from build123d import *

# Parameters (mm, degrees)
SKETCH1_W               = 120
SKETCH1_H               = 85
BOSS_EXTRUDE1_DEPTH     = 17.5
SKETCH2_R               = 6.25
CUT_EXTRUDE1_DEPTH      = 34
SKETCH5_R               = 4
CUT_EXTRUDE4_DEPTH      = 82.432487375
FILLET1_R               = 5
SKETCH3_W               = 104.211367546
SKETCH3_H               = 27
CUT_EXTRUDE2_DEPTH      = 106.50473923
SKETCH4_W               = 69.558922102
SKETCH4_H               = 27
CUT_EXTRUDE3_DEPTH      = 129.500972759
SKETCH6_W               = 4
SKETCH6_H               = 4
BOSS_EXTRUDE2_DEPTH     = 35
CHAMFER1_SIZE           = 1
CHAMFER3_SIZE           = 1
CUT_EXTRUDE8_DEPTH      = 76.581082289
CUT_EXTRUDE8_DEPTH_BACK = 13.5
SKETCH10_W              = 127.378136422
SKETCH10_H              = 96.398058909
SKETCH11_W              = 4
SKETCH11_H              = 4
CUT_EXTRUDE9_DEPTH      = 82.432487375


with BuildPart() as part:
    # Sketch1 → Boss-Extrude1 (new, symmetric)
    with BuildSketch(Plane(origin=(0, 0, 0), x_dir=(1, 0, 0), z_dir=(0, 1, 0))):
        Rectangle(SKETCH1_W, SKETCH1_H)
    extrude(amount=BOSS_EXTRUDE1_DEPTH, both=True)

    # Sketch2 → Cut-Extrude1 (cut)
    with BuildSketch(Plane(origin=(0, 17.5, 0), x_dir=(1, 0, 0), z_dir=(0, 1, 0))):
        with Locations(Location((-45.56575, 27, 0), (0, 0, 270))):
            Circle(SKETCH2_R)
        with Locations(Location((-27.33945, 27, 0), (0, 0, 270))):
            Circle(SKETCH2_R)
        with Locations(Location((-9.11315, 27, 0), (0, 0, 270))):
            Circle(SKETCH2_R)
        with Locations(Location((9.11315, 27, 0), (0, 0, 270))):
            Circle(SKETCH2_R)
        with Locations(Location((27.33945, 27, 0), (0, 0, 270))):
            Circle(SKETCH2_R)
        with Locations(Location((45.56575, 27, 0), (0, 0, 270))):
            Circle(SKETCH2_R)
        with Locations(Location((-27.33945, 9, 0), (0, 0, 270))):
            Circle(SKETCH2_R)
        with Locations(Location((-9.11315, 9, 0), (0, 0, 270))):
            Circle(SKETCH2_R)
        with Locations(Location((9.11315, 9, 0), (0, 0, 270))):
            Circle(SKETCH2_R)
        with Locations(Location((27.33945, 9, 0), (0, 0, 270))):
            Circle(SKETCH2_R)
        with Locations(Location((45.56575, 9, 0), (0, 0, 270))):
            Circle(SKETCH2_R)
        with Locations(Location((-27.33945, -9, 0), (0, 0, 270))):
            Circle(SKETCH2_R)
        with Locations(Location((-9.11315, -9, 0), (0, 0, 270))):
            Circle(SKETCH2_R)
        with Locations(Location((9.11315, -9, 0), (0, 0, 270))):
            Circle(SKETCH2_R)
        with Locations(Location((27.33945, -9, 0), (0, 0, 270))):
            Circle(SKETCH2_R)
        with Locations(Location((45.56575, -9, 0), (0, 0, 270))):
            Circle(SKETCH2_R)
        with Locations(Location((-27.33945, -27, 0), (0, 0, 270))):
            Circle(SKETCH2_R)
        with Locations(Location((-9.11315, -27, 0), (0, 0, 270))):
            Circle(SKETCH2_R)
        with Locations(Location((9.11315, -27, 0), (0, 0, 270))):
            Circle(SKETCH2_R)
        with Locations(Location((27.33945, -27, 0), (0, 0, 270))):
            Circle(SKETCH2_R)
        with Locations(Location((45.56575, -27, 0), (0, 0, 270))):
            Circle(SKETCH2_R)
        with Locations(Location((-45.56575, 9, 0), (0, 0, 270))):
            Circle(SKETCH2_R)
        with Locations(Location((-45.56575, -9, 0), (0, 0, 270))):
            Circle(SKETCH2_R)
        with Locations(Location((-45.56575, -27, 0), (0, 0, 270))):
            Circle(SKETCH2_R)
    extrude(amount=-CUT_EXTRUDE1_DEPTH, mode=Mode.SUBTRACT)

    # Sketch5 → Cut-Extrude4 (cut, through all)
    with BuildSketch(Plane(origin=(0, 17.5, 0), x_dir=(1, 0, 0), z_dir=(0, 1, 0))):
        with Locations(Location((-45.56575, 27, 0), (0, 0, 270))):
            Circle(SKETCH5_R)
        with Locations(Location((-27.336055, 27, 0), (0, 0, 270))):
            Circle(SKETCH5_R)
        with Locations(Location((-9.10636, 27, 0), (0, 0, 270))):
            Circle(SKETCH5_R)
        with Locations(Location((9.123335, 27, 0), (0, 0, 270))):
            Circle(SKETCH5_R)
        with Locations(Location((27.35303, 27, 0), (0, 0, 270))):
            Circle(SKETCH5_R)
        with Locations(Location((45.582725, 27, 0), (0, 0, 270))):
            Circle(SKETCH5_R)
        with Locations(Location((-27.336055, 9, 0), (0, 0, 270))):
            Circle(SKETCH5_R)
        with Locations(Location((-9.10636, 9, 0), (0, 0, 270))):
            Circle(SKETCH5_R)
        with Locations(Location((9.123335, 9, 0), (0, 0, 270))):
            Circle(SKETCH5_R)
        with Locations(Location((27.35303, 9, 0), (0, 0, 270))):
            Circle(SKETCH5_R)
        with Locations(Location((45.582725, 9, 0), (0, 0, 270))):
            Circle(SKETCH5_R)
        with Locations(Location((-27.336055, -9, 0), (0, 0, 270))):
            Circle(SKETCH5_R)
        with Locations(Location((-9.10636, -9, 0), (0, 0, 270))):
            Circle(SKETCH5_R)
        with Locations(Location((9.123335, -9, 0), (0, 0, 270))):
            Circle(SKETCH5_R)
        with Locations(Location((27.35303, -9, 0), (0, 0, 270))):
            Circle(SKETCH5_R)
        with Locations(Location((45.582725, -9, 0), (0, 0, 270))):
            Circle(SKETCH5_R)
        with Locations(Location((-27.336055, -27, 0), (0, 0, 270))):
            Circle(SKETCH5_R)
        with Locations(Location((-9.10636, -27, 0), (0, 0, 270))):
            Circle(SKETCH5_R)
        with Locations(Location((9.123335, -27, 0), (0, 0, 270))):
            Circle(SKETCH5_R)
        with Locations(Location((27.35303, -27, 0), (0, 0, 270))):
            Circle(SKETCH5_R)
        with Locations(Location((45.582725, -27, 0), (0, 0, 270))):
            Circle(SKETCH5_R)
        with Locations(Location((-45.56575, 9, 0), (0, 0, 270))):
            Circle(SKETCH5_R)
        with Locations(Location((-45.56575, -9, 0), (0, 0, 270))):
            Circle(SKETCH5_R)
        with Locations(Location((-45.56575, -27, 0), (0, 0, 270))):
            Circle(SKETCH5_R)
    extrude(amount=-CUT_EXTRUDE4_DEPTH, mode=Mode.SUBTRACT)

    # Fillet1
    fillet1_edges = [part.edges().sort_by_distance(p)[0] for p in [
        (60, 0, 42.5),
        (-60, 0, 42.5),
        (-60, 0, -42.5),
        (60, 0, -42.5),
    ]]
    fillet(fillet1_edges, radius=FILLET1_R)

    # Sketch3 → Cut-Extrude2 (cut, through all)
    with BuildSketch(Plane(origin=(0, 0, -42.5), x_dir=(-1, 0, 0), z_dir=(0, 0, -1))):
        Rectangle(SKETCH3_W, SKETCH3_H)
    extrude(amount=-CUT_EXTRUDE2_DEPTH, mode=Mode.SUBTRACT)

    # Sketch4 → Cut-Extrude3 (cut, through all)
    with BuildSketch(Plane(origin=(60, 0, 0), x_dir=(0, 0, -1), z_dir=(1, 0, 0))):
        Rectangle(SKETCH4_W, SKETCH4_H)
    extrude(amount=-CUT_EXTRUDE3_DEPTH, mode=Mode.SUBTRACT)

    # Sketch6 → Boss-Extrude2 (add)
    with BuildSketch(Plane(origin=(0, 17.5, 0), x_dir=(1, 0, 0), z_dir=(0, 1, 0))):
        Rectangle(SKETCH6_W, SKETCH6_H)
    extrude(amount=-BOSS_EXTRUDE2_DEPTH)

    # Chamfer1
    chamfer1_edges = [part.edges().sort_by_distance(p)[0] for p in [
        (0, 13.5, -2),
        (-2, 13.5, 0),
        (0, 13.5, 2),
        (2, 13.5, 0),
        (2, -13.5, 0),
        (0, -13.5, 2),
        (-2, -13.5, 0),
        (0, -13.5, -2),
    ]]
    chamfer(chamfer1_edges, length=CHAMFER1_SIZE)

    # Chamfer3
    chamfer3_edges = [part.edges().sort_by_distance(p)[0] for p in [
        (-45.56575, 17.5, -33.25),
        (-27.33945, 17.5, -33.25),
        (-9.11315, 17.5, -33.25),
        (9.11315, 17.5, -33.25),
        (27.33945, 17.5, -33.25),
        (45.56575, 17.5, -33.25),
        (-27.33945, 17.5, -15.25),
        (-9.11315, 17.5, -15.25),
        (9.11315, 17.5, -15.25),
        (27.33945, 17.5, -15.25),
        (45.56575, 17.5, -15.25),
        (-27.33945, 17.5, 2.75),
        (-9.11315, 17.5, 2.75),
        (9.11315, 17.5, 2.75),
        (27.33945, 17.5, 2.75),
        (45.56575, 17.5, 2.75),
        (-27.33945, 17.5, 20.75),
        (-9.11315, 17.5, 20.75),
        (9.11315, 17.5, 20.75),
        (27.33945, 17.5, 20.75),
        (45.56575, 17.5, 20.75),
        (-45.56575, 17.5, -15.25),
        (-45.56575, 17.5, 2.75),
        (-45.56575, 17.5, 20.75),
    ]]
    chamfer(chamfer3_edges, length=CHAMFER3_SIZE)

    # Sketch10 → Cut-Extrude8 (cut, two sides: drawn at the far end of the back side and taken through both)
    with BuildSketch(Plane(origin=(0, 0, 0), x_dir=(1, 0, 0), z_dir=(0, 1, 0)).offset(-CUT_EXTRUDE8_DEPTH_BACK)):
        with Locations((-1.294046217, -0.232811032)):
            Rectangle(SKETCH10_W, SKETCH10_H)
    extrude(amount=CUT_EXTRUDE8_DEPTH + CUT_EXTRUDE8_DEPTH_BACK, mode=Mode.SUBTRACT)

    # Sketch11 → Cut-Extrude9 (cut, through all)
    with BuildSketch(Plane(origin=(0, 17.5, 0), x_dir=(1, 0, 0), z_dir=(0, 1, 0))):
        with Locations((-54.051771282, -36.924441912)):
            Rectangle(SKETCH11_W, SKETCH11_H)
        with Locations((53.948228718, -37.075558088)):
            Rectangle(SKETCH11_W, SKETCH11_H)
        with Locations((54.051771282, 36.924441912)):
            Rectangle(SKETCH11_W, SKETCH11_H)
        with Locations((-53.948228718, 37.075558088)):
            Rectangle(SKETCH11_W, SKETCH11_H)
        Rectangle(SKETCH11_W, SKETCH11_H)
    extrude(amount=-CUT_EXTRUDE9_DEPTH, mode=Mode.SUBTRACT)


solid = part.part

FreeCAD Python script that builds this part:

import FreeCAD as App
import Part
import Sketcher
from FreeCAD import Vector


def edges_at(feature, points):
    """Names of the edges that pass closest to the given points."""
    edges = feature.Shape.Edges
    near = lambda p: min(range(len(edges)), key=lambda i: edges[i].distToShape(Part.Vertex(*p))[0])
    return sorted({f"Edge{near(p) + 1}" for p in points})

doc = App.newDocument("Part")
params = doc.addObject("Spreadsheet::Sheet", "Params")
for row, (alias, value) in enumerate([
    ("sketch1_width", "120 mm"),
    ("sketch1_height", "85 mm"),
    ("pad1_length", "35 mm"),
    ("sketch2_diameter", "12.5 mm"),
    ("pocket1_length", "34 mm"),
    ("sketch3_diameter", "8 mm"),
    ("fillet_radius", "5 mm"),
    ("sketch4_height", "27 mm"),
    ("sketch5_width", "27 mm"),
    ("sketch6_width", "4 mm"),
    ("pad2_length", "35 mm"),
    ("chamfer_size", "1 mm"),
    ("chamfer2_size", "1 mm"),
    ("pocket5_length", "76.581082 mm"),
    ("pocket5_length2", "13.5 mm"),
    ("sketch8_width", "4 mm"),
], start=1):
    params.set(f"A{row}", alias)
    params.set(f"B{row}", "=" + value)
    params.setAlias(f"B{row}", alias)

body = doc.addObject("PartDesign::Body", "Body")

sketch1 = doc.addObject("Sketcher::SketchObject", "Sketch")
body.addObject(sketch1)
sketch1.AttachmentSupport = (doc.XZ_Plane, [""])
sketch1.MapMode = "FlatFace"
sketch1.addGeometry(Part.LineSegment(Vector(-60, -42, 0), Vector(-60, 42, 0)), False)
sketch1.addGeometry(Part.LineSegment(Vector(-60, 42, 0), Vector(60, 42, 0)), False)
sketch1.addGeometry(Part.LineSegment(Vector(60, 42, 0), Vector(60, -42, 0)), False)
sketch1.addGeometry(Part.LineSegment(Vector(60, -42, 0), Vector(-60, -42, 0)), False)
sketch1.addConstraint(Sketcher.Constraint("Coincident", 0, 2, 1, 1))
sketch1.addConstraint(Sketcher.Constraint("Coincident", 1, 2, 2, 1))
sketch1.addConstraint(Sketcher.Constraint("Coincident", 2, 2, 3, 1))
sketch1.addConstraint(Sketcher.Constraint("Coincident", 3, 2, 0, 1))
sketch1.addConstraint(Sketcher.Constraint("Vertical", 0))
sketch1.addConstraint(Sketcher.Constraint("Horizontal", 1))
sketch1.addConstraint(Sketcher.Constraint("Vertical", 2))
sketch1.addConstraint(Sketcher.Constraint("Horizontal", 3))
sketch1.addConstraint(Sketcher.Constraint("Symmetric", 0, 2, 2, 2, -1, 1))
sketch1.addConstraint(Sketcher.Constraint("DistanceX", 1, 1, 1, 2, 120.0))
sketch1.addConstraint(Sketcher.Constraint("DistanceY", 0, 1, 0, 2, 85.0))
sketch1.setExpression("Constraints[9]", "Params.sketch1_width")
sketch1.setExpression("Constraints[10]", "Params.sketch1_height")
pad1 = doc.addObject("PartDesign::Pad", "Pad")
body.addObject(pad1)
pad1.Profile = sketch1
pad1.setExpression("Length", "Params.pad1_length")
pad1.Midplane = True

sketch2 = doc.addObject("Sketcher::SketchObject", "Sketch001")
body.addObject(sketch2)
sketch2.AttachmentSupport = (doc.XZ_Plane, [""])
sketch2.MapMode = "FlatFace"
sketch2.AttachmentOffset = App.Placement(Vector(0, 0, -17.5), App.Rotation())
sketch2.addGeometry(Part.Circle(Vector(-46, -27, 0), Vector(0, 0, 1), 6), False)
sketch2.addGeometry(Part.Circle(Vector(-27, -27, 0), Vector(0, 0, 1), 6), False)
sketch2.addGeometry(Part.Circle(Vector(-9, -27, 0), Vector(0, 0, 1), 6), False)
sketch2.addGeometry(Part.Circle(Vector(9, -27, 0), Vector(0, 0, 1), 6), False)
sketch2.addGeometry(Part.Circle(Vector(27, -27, 0), Vector(0, 0, 1), 6), False)
sketch2.addGeometry(Part.Circle(Vector(46, -27, 0), Vector(0, 0, 1), 6), False)
sketch2.addGeometry(Part.Circle(Vector(-27, -9, 0), Vector(0, 0, 1), 6), False)
sketch2.addGeometry(Part.Circle(Vector(-9, -9, 0), Vector(0, 0, 1), 6), False)
sketch2.addGeometry(Part.Circle(Vector(9, -9, 0), Vector(0, 0, 1), 6), False)
sketch2.addGeometry(Part.Circle(Vector(27, -9, 0), Vector(0, 0, 1), 6), False)
sketch2.addGeometry(Part.Circle(Vector(46, -9, 0), Vector(0, 0, 1), 6), False)
sketch2.addGeometry(Part.Circle(Vector(-27, 9, 0), Vector(0, 0, 1), 6), False)
sketch2.addGeometry(Part.Circle(Vector(-9, 9, 0), Vector(0, 0, 1), 6), False)
sketch2.addGeometry(Part.Circle(Vector(9, 9, 0), Vector(0, 0, 1), 6), False)
sketch2.addGeometry(Part.Circle(Vector(27, 9, 0), Vector(0, 0, 1), 6), False)
sketch2.addGeometry(Part.Circle(Vector(46, 9, 0), Vector(0, 0, 1), 6), False)
sketch2.addGeometry(Part.Circle(Vector(-27, 27, 0), Vector(0, 0, 1), 6), False)
sketch2.addGeometry(Part.Circle(Vector(-9, 27, 0), Vector(0, 0, 1), 6), False)
sketch2.addGeometry(Part.Circle(Vector(9, 27, 0), Vector(0, 0, 1), 6), False)
sketch2.addGeometry(Part.Circle(Vector(27, 27, 0), Vector(0, 0, 1), 6), False)
sketch2.addGeometry(Part.Circle(Vector(46, 27, 0), Vector(0, 0, 1), 6), False)
sketch2.addGeometry(Part.Circle(Vector(-46, -9, 0), Vector(0, 0, 1), 6), False)
sketch2.addGeometry(Part.Circle(Vector(-46, 9, 0), Vector(0, 0, 1), 6), False)
sketch2.addGeometry(Part.Circle(Vector(-46, 27, 0), Vector(0, 0, 1), 6), False)
sketch2.addConstraint(Sketcher.Constraint("Equal", 0, 1))
sketch2.addConstraint(Sketcher.Constraint("Equal", 1, 2))
sketch2.addConstraint(Sketcher.Constraint("Equal", 2, 3))
sketch2.addConstraint(Sketcher.Constraint("Equal", 3, 4))
sketch2.addConstraint(Sketcher.Constraint("Equal", 4, 5))
sketch2.addConstraint(Sketcher.Constraint("Equal", 5, 6))
sketch2.addConstraint(Sketcher.Constraint("Equal", 6, 7))
sketch2.addConstraint(Sketcher.Constraint("Equal", 7, 8))
sketch2.addConstraint(Sketcher.Constraint("Equal", 8, 9))
sketch2.addConstraint(Sketcher.Constraint("Equal", 9, 10))
sketch2.addConstraint(Sketcher.Constraint("Equal", 10, 11))
sketch2.addConstraint(Sketcher.Constraint("Equal", 11, 12))
sketch2.addConstraint(Sketcher.Constraint("Equal", 12, 13))
sketch2.addConstraint(Sketcher.Constraint("Equal", 13, 14))
sketch2.addConstraint(Sketcher.Constraint("Equal", 14, 15))
sketch2.addConstraint(Sketcher.Constraint("Equal", 15, 16))
sketch2.addConstraint(Sketcher.Constraint("Equal", 16, 17))
sketch2.addConstraint(Sketcher.Constraint("Equal", 17, 18))
sketch2.addConstraint(Sketcher.Constraint("Equal", 18, 19))
sketch2.addConstraint(Sketcher.Constraint("Equal", 19, 20))
sketch2.addConstraint(Sketcher.Constraint("Equal", 20, 21))
sketch2.addConstraint(Sketcher.Constraint("Equal", 21, 22))
sketch2.addConstraint(Sketcher.Constraint("Equal", 22, 23))
sketch2.addConstraint(Sketcher.Constraint("Symmetric", 9, 3, 11, 3, -1, 1))
sketch2.addConstraint(Sketcher.Constraint("Symmetric", 8, 3, 12, 3, -1, 1))
sketch2.addConstraint(Sketcher.Constraint("Symmetric", 7, 3, 13, 3, -1, 1))
sketch2.addConstraint(Sketcher.Constraint("Symmetric", 6, 3, 14, 3, -1, 1))
sketch2.addConstraint(Sketcher.Constraint("Symmetric", 4, 3, 16, 3, -1, 1))
sketch2.addConstraint(Sketcher.Constraint("Symmetric", 3, 3, 17, 3, -1, 1))
sketch2.addConstraint(Sketcher.Constraint("Symmetric", 2, 3, 18, 3, -1, 1))
sketch2.addConstraint(Sketcher.Constraint("Symmetric", 1, 3, 19, 3, -1, 1))
sketch2.addConstraint(Sketcher.Constraint("Symmetric", 0, 3, 20, 3, -1, 1))
sketch2.addConstraint(Sketcher.Constraint("Symmetric", 15, 3, 21, 3, -1, 1))
sketch2.addConstraint(Sketcher.Constraint("Symmetric", 10, 3, 22, 3, -1, 1))
sketch2.addConstraint(Sketcher.Constraint("Symmetric", 5, 3, 23, 3, -1, 1))
sketch2.addConstraint(Sketcher.Constraint("Symmetric", 2, 3, 3, 3, -2))
sketch2.addConstraint(Sketcher.Constraint("Symmetric", 1, 3, 4, 3, -2))
sketch2.addConstraint(Sketcher.Constraint("Symmetric", 0, 3, 5, 3, -2))
sketch2.addConstraint(Sketcher.Constraint("Symmetric", 7, 3, 8, 3, -2))
sketch2.addConstraint(Sketcher.Constraint("Symmetric", 6, 3, 9, 3, -2))
sketch2.addConstraint(Sketcher.Constraint("Symmetric", 10, 3, 21, 3, -2))
sketch2.addConstraint(Sketcher.Constraint("Horizontal", 0, 3, 1, 3))
sketch2.addConstraint(Sketcher.Constraint("Horizontal", 1, 3, 2, 3))
sketch2.addConstraint(Sketcher.Constraint("Horizontal", 6, 3, 7, 3))
sketch2.addConstraint(Sketcher.Constraint("Horizontal", 9, 3, 10, 3))
sketch2.addConstraint(Sketcher.Constraint("Vertical", 1, 3, 6, 3))
sketch2.addConstraint(Sketcher.Constraint("Vertical", 2, 3, 7, 3))
sketch2.addConstraint(Sketcher.Constraint("Vertical", 5, 3, 10, 3))
sketch2.addConstraint(Sketcher.Constraint("Diameter", 0, 12.5))
sketch2.addConstraint(Sketcher.Constraint("DistanceY", 0, 3, -1, 1, 27.0))
sketch2.addConstraint(Sketcher.Constraint("DistanceY", 6, 3, -1, 1, 9.0))
sketch2.addConstraint(Sketcher.Constraint("DistanceX", 0, 3, 1, 3, 18.2263))
sketch2.addConstraint(Sketcher.Constraint("DistanceX", 1, 3, 2, 3, 18.2263))
sketch2.addConstraint(Sketcher.Constraint("DistanceX", 2, 3, 3, 3, 18.2263))
sketch2.setExpression("Constraints[48]", "Params.sketch2_diameter")
pocket1 = doc.addObject("PartDesign::Pocket", "Pocket")
body.addObject(pocket1)
pocket1.Profile = sketch2
pocket1.setExpression("Length", "Params.pocket1_length")
pocket1.Reversed = True

sketch3 = doc.addObject("Sketcher::SketchObject", "Sketch002")
body.addObject(sketch3)
sketch3.AttachmentSupport = (doc.XZ_Plane, [""])
sketch3.MapMode = "FlatFace"
sketch3.AttachmentOffset = App.Placement(Vector(0, 0, -17.5), App.Rotation())
sketch3.addGeometry(Part.Circle(Vector(-45.6, -27, 0), Vector(0, 0, 1), 4), False)
sketch3.addGeometry(Part.Circle(Vector(-27.3, -27, 0), Vector(0, 0, 1), 4), False)
sketch3.addGeometry(Part.Circle(Vector(-9.1, -27, 0), Vector(0, 0, 1), 4), False)
sketch3.addGeometry(Part.Circle(Vector(9.1, -27, 0), Vector(0, 0, 1), 4), False)
sketch3.addGeometry(Part.Circle(Vector(27.4, -27, 0), Vector(0, 0, 1), 4), False)
sketch3.addGeometry(Part.Circle(Vector(45.6, -27, 0), Vector(0, 0, 1), 4), False)
sketch3.addGeometry(Part.Circle(Vector(-27.3, -9, 0), Vector(0, 0, 1), 4), False)
sketch3.addGeometry(Part.Circle(Vector(-9.1, -9, 0), Vector(0, 0, 1), 4), False)
sketch3.addGeometry(Part.Circle(Vector(9.1, -9, 0), Vector(0, 0, 1), 4), False)
sketch3.addGeometry(Part.Circle(Vector(27.4, -9, 0), Vector(0, 0, 1), 4), False)
sketch3.addGeometry(Part.Circle(Vector(45.6, -9, 0), Vector(0, 0, 1), 4), False)
sketch3.addGeometry(Part.Circle(Vector(-27.3, 9, 0), Vector(0, 0, 1), 4), False)
sketch3.addGeometry(Part.Circle(Vector(-9.1, 9, 0), Vector(0, 0, 1), 4), False)
sketch3.addGeometry(Part.Circle(Vector(9.1, 9, 0), Vector(0, 0, 1), 4), False)
sketch3.addGeometry(Part.Circle(Vector(27.4, 9, 0), Vector(0, 0, 1), 4), False)
sketch3.addGeometry(Part.Circle(Vector(45.6, 9, 0), Vector(0, 0, 1), 4), False)
sketch3.addGeometry(Part.Circle(Vector(-27.3, 27, 0), Vector(0, 0, 1), 4), False)
sketch3.addGeometry(Part.Circle(Vector(-9.1, 27, 0), Vector(0, 0, 1), 4), False)
sketch3.addGeometry(Part.Circle(Vector(9.1, 27, 0), Vector(0, 0, 1), 4), False)
sketch3.addGeometry(Part.Circle(Vector(27.4, 27, 0), Vector(0, 0, 1), 4), False)
sketch3.addGeometry(Part.Circle(Vector(45.6, 27, 0), Vector(0, 0, 1), 4), False)
sketch3.addGeometry(Part.Circle(Vector(-45.6, -9, 0), Vector(0, 0, 1), 4), False)
sketch3.addGeometry(Part.Circle(Vector(-45.6, 9, 0), Vector(0, 0, 1), 4), False)
sketch3.addGeometry(Part.Circle(Vector(-45.6, 27, 0), Vector(0, 0, 1), 4), False)
sketch3.addConstraint(Sketcher.Constraint("Equal", 0, 1))
sketch3.addConstraint(Sketcher.Constraint("Equal", 1, 2))
sketch3.addConstraint(Sketcher.Constraint("Equal", 2, 3))
sketch3.addConstraint(Sketcher.Constraint("Equal", 3, 4))
sketch3.addConstraint(Sketcher.Constraint("Equal", 4, 5))
sketch3.addConstraint(Sketcher.Constraint("Equal", 5, 6))
sketch3.addConstraint(Sketcher.Constraint("Equal", 6, 7))
sketch3.addConstraint(Sketcher.Constraint("Equal", 7, 8))
sketch3.addConstraint(Sketcher.Constraint("Equal", 8, 9))
sketch3.addConstraint(Sketcher.Constraint("Equal", 9, 10))
sketch3.addConstraint(Sketcher.Constraint("Equal", 10, 11))
sketch3.addConstraint(Sketcher.Constraint("Equal", 11, 12))
sketch3.addConstraint(Sketcher.Constraint("Equal", 12, 13))
sketch3.addConstraint(Sketcher.Constraint("Equal", 13, 14))
sketch3.addConstraint(Sketcher.Constraint("Equal", 14, 15))
sketch3.addConstraint(Sketcher.Constraint("Equal", 15, 16))
sketch3.addConstraint(Sketcher.Constraint("Equal", 16, 17))
sketch3.addConstraint(Sketcher.Constraint("Equal", 17, 18))
sketch3.addConstraint(Sketcher.Constraint("Equal", 18, 19))
sketch3.addConstraint(Sketcher.Constraint("Equal", 19, 20))
sketch3.addConstraint(Sketcher.Constraint("Equal", 20, 21))
sketch3.addConstraint(Sketcher.Constraint("Equal", 21, 22))
sketch3.addConstraint(Sketcher.Constraint("Equal", 22, 23))
sketch3.addConstraint(Sketcher.Constraint("Symmetric", 6, 3, 11, 3, -1))
sketch3.addConstraint(Sketcher.Constraint("Symmetric", 7, 3, 12, 3, -1))
sketch3.addConstraint(Sketcher.Constraint("Symmetric", 8, 3, 13, 3, -1))
sketch3.addConstraint(Sketcher.Constraint("Symmetric", 9, 3, 14, 3, -1))
sketch3.addConstraint(Sketcher.Constraint("Symmetric", 10, 3, 15, 3, -1))
sketch3.addConstraint(Sketcher.Constraint("Symmetric", 1, 3, 16, 3, -1))
sketch3.addConstraint(Sketcher.Constraint("Symmetric", 2, 3, 17, 3, -1))
sketch3.addConstraint(Sketcher.Constraint("Symmetric", 3, 3, 18, 3, -1))
sketch3.addConstraint(Sketcher.Constraint("Symmetric", 4, 3, 19, 3, -1))
sketch3.addConstraint(Sketcher.Constraint("Symmetric", 5, 3, 20, 3, -1))
sketch3.addConstraint(Sketcher.Constraint("Symmetric", 21, 3, 22, 3, -1))
sketch3.addConstraint(Sketcher.Constraint("Symmetric", 0, 3, 23, 3, -1))
sketch3.addConstraint(Sketcher.Constraint("Horizontal", 0, 3, 1, 3))
sketch3.addConstraint(Sketcher.Constraint("Horizontal", 1, 3, 2, 3))
sketch3.addConstraint(Sketcher.Constraint("Horizontal", 2, 3, 3, 3))
sketch3.addConstraint(Sketcher.Constraint("Horizontal", 3, 3, 4, 3))
sketch3.addConstraint(Sketcher.Constraint("Horizontal", 4, 3, 5, 3))
sketch3.addConstraint(Sketcher.Constraint("Horizontal", 6, 3, 7, 3))
sketch3.addConstraint(Sketcher.Constraint("Horizontal", 7, 3, 8, 3))
sketch3.addConstraint(Sketcher.Constraint("Horizontal", 8, 3, 9, 3))
sketch3.addConstraint(Sketcher.Constraint("Horizontal", 9, 3, 10, 3))
sketch3.addConstraint(Sketcher.Constraint("Horizontal", 10, 3, 21, 3))
sketch3.addConstraint(Sketcher.Constraint("Vertical", 1, 3, 6, 3))
sketch3.addConstraint(Sketcher.Constraint("Vertical", 2, 3, 7, 3))
sketch3.addConstraint(Sketcher.Constraint("Vertical", 3, 3, 8, 3))
sketch3.addConstraint(Sketcher.Constraint("Vertical", 4, 3, 9, 3))
sketch3.addConstraint(Sketcher.Constraint("Vertical", 5, 3, 10, 3))
sketch3.addConstraint(Sketcher.Constraint("Vertical", 0, 3, 21, 3))
sketch3.addConstraint(Sketcher.Constraint("Diameter", 0, 8.0))
sketch3.addConstraint(Sketcher.Constraint("DistanceY", 0, 3, -1, 1, 27.0))
sketch3.addConstraint(Sketcher.Constraint("DistanceY", 6, 3, -1, 1, 9.0))
sketch3.addConstraint(Sketcher.Constraint("DistanceX", 0, 3, -1, 1, 45.56575))
sketch3.addConstraint(Sketcher.Constraint("DistanceX", 2, 3, -1, 1, 9.10636))
sketch3.addConstraint(Sketcher.Constraint("DistanceX", -1, 1, 4, 3, 27.35303))
sketch3.addConstraint(Sketcher.Constraint("DistanceX", 1, 3, 3, 3, 36.45939))
sketch3.addConstraint(Sketcher.Constraint("DistanceX", 3, 3, 5, 3, 36.45939))
sketch3.addConstraint(Sketcher.Constraint("DistanceX", 1, 3, -1, 1, 27.336055))
sketch3.setExpression("Constraints[51]", "Params.sketch3_diameter")
pocket2 = doc.addObject("PartDesign::Pocket", "Pocket001")
body.addObject(pocket2)
pocket2.Profile = sketch3
pocket2.Type = "ThroughAll"
pocket2.Reversed = True
doc.recompute()

fillet = doc.addObject("PartDesign::Fillet", "Fillet")
body.addObject(fillet)
fillet.Base = (pocket2, edges_at(pocket2, [
    (60, 0, 42.5),
    (-60, 0, 42.5),
    (-60, 0, -42.5),
    (60, 0, -42.5),
]))
fillet.setExpression("Radius", "Params.fillet_radius")

sketch4 = doc.addObject("Sketcher::SketchObject", "Sketch003")
body.addObject(sketch4)
sketch4.AttachmentSupport = (doc.XY_Plane, [""])
sketch4.MapMode = "FlatFace"
sketch4.AttachmentOffset = App.Placement(Vector(0, 0, -42.5), App.Rotation())
sketch4.addGeometry(Part.LineSegment(Vector(52, 14, 0), Vector(52, -14, 0)), False)
sketch4.addGeometry(Part.LineSegment(Vector(52, -14, 0), Vector(-52, -14, 0)), False)
sketch4.addGeometry(Part.LineSegment(Vector(-52, -14, 0), Vector(-52, 14, 0)), False)
sketch4.addGeometry(Part.LineSegment(Vector(-52, 14, 0), Vector(52, 14, 0)), False)
sketch4.addConstraint(Sketcher.Constraint("Coincident", 0, 2, 1, 1))
sketch4.addConstraint(Sketcher.Constraint("Coincident", 1, 2, 2, 1))
sketch4.addConstraint(Sketcher.Constraint("Coincident", 2, 2, 3, 1))
sketch4.addConstraint(Sketcher.Constraint("Coincident", 3, 2, 0, 1))
sketch4.addConstraint(Sketcher.Constraint("Vertical", 0))
sketch4.addConstraint(Sketcher.Constraint("Horizontal", 1))
sketch4.addConstraint(Sketcher.Constraint("Vertical", 2))
sketch4.addConstraint(Sketcher.Constraint("Horizontal", 3))
sketch4.addConstraint(Sketcher.Constraint("Symmetric", 0, 2, 2, 2, -1, 1))
sketch4.addConstraint(Sketcher.Constraint("DistanceY", 0, 2, 0, 1, 27.0))
sketch4.addConstraint(Sketcher.Constraint("DistanceX", 1, 2, 1, 1, 104.211368))
sketch4.setExpression("Constraints[9]", "Params.sketch4_height")
pocket3 = doc.addObject("PartDesign::Pocket", "Pocket002")
body.addObject(pocket3)
pocket3.Profile = sketch4
pocket3.Type = "ThroughAll"
pocket3.Reversed = True

sketch5 = doc.addObject("Sketcher::SketchObject", "Sketch004")
body.addObject(sketch5)
sketch5.AttachmentSupport = (doc.YZ_Plane, [""])
sketch5.MapMode = "FlatFace"
sketch5.AttachmentOffset = App.Placement(Vector(0, 0, 60), App.Rotation())
sketch5.addGeometry(Part.LineSegment(Vector(14, 35, 0), Vector(-14, 35, 0)), False)
sketch5.addGeometry(Part.LineSegment(Vector(-14, 35, 0), Vector(-14, -35, 0)), False)
sketch5.addGeometry(Part.LineSegment(Vector(-14, -35, 0), Vector(14, -35, 0)), False)
sketch5.addGeometry(Part.LineSegment(Vector(14, -35, 0), Vector(14, 35, 0)), False)
sketch5.addConstraint(Sketcher.Constraint("Coincident", 0, 2, 1, 1))
sketch5.addConstraint(Sketcher.Constraint("Coincident", 1, 2, 2, 1))
sketch5.addConstraint(Sketcher.Constraint("Coincident", 2, 2, 3, 1))
sketch5.addConstraint(Sketcher.Constraint("Coincident", 3, 2, 0, 1))
sketch5.addConstraint(Sketcher.Constraint("Horizontal", 0))
sketch5.addConstraint(Sketcher.Constraint("Vertical", 1))
sketch5.addConstraint(Sketcher.Constraint("Horizontal", 2))
sketch5.addConstraint(Sketcher.Constraint("Vertical", 3))
sketch5.addConstraint(Sketcher.Constraint("Symmetric", 0, 2, 2, 2, -1, 1))
sketch5.addConstraint(Sketcher.Constraint("DistanceX", 0, 2, 0, 1, 27.0))
sketch5.addConstraint(Sketcher.Constraint("DistanceY", 1, 2, 1, 1, 69.558922))
sketch5.setExpression("Constraints[9]", "Params.sketch5_width")
pocket4 = doc.addObject("PartDesign::Pocket", "Pocket003")
body.addObject(pocket4)
pocket4.Profile = sketch5
pocket4.Type = "ThroughAll"

sketch6 = doc.addObject("Sketcher::SketchObject", "Sketch005")
body.addObject(sketch6)
sketch6.AttachmentSupport = (doc.XZ_Plane, [""])
sketch6.MapMode = "FlatFace"
sketch6.AttachmentOffset = App.Placement(Vector(0, 0, -17.5), App.Rotation())
sketch6.addGeometry(Part.LineSegment(Vector(-2, -2, 0), Vector(-2, 2, 0)), False)
sketch6.addGeometry(Part.LineSegment(Vector(-2, 2, 0), Vector(2, 2, 0)), False)
sketch6.addGeometry(Part.LineSegment(Vector(2, 2, 0), Vector(2, -2, 0)), False)
sketch6.addGeometry(Part.LineSegment(Vector(2, -2, 0), Vector(-2, -2, 0)), False)
sketch6.addConstraint(Sketcher.Constraint("Coincident", 0, 2, 1, 1))
sketch6.addConstraint(Sketcher.Constraint("Coincident", 1, 2, 2, 1))
sketch6.addConstraint(Sketcher.Constraint("Coincident", 2, 2, 3, 1))
sketch6.addConstraint(Sketcher.Constraint("Coincident", 3, 2, 0, 1))
sketch6.addConstraint(Sketcher.Constraint("Vertical", 0))
sketch6.addConstraint(Sketcher.Constraint("Horizontal", 1))
sketch6.addConstraint(Sketcher.Constraint("Vertical", 2))
sketch6.addConstraint(Sketcher.Constraint("Horizontal", 3))
sketch6.addConstraint(Sketcher.Constraint("Symmetric", 0, 2, 2, 2, -1, 1))
sketch6.addConstraint(Sketcher.Constraint("Equal", 3, 0))
sketch6.addConstraint(Sketcher.Constraint("DistanceX", 1, 1, 1, 2, 4.0))
sketch6.setExpression("Constraints[10]", "Params.sketch6_width")
pad2 = doc.addObject("PartDesign::Pad", "Pad001")
body.addObject(pad2)
pad2.Profile = sketch6
pad2.setExpression("Length", "Params.pad2_length")
doc.recompute()

chamfer = doc.addObject("PartDesign::Chamfer", "Chamfer")
body.addObject(chamfer)
chamfer.Base = (pad2, edges_at(pad2, [
    (0, 13.5, -2),
    (-2, 13.5, 0),
    (0, 13.5, 2),
    (2, 13.5, 0),
    (2, -13.5, 0),
    (0, -13.5, 2),
    (-2, -13.5, 0),
    (0, -13.5, -2),
]))
chamfer.setExpression("Size", "Params.chamfer_size")
doc.recompute()

chamfer2 = doc.addObject("PartDesign::Chamfer", "Chamfer001")
body.addObject(chamfer2)
chamfer2.Base = (chamfer, edges_at(chamfer, [
    (-45.566, 17.5, -33.25),
    (-27.339, 17.5, -33.25),
    (-9.113, 17.5, -33.25),
    (9.113, 17.5, -33.25),
    (27.339, 17.5, -33.25),
    (45.566, 17.5, -33.25),
    (-27.339, 17.5, -15.25),
    (-9.113, 17.5, -15.25),
    (9.113, 17.5, -15.25),
    (27.339, 17.5, -15.25),
    (45.566, 17.5, -15.25),
    (-27.339, 17.5, 2.75),
    (-9.113, 17.5, 2.75),
    (9.113, 17.5, 2.75),
    (27.339, 17.5, 2.75),
    (45.566, 17.5, 2.75),
    (-27.339, 17.5, 20.75),
    (-9.113, 17.5, 20.75),
    (9.113, 17.5, 20.75),
    (27.339, 17.5, 20.75),
    (45.566, 17.5, 20.75),
    (-45.566, 17.5, -15.25),
    (-45.566, 17.5, 2.75),
    (-45.566, 17.5, 20.75),
]))
chamfer2.setExpression("Size", "Params.chamfer2_size")

sketch7 = doc.addObject("Sketcher::SketchObject", "Sketch006")
body.addObject(sketch7)
sketch7.AttachmentSupport = (doc.XZ_Plane, [""])
sketch7.MapMode = "FlatFace"
sketch7.addGeometry(Part.LineSegment(Vector(-65, -48, 0), Vector(-65, 48, 0)), False)
sketch7.addGeometry(Part.LineSegment(Vector(-65, 48, 0), Vector(62, 48, 0)), False)
sketch7.addGeometry(Part.LineSegment(Vector(62, 48, 0), Vector(62, -48, 0)), False)
sketch7.addGeometry(Part.LineSegment(Vector(62, -48, 0), Vector(-65, -48, 0)), False)
sketch7.addConstraint(Sketcher.Constraint("Coincident", 0, 2, 1, 1))
sketch7.addConstraint(Sketcher.Constraint("Coincident", 1, 2, 2, 1))
sketch7.addConstraint(Sketcher.Constraint("Coincident", 2, 2, 3, 1))
sketch7.addConstraint(Sketcher.Constraint("Coincident", 3, 2, 0, 1))
sketch7.addConstraint(Sketcher.Constraint("Vertical", 0))
sketch7.addConstraint(Sketcher.Constraint("Horizontal", 1))
sketch7.addConstraint(Sketcher.Constraint("Vertical", 2))
sketch7.addConstraint(Sketcher.Constraint("Horizontal", 3))
sketch7.addConstraint(Sketcher.Constraint("DistanceY", 0, 1, 0, 2, 96.398059))
sketch7.addConstraint(Sketcher.Constraint("DistanceX", 1, 1, 1, 2, 127.378136))
sketch7.addConstraint(Sketcher.Constraint("DistanceY", -1, 1, 0, 2, 48.43184))
sketch7.addConstraint(Sketcher.Constraint("DistanceX", -1, 1, 1, 2, 62.395022))
pocket5 = doc.addObject("PartDesign::Pocket", "Pocket004")
body.addObject(pocket5)
pocket5.Profile = sketch7
pocket5.Type = "TwoLengths"
pocket5.setExpression("Length", "Params.pocket5_length")
pocket5.setExpression("Length2", "Params.pocket5_length2")

sketch8 = doc.addObject("Sketcher::SketchObject", "Sketch007")
body.addObject(sketch8)
sketch8.AttachmentSupport = (doc.XZ_Plane, [""])
sketch8.MapMode = "FlatFace"
sketch8.AttachmentOffset = App.Placement(Vector(0, 0, -17.5), App.Rotation())
sketch8.addGeometry(Part.LineSegment(Vector(-56.1, 34.9, 0), Vector(-56.1, 38.9, 0)), False)
sketch8.addGeometry(Part.LineSegment(Vector(-56.1, 38.9, 0), Vector(-52.1, 38.9, 0)), False)
sketch8.addGeometry(Part.LineSegment(Vector(-52.1, 38.9, 0), Vector(-52.1, 34.9, 0)), False)
sketch8.addGeometry(Part.LineSegment(Vector(-52.1, 34.9, 0), Vector(-56.1, 34.9, 0)), False)
sketch8.addGeometry(Part.LineSegment(Vector(51.9, 35.1, 0), Vector(51.9, 39.1, 0)), False)
sketch8.addGeometry(Part.LineSegment(Vector(51.9, 39.1, 0), Vector(55.9, 39.1, 0)), False)
sketch8.addGeometry(Part.LineSegment(Vector(55.9, 39.1, 0), Vector(55.9, 35.1, 0)), False)
sketch8.addGeometry(Part.LineSegment(Vector(55.9, 35.1, 0), Vector(51.9, 35.1, 0)), False)
sketch8.addGeometry(Part.LineSegment(Vector(52.1, -38.9, 0), Vector(52.1, -34.9, 0)), False)
sketch8.addGeometry(Part.LineSegment(Vector(52.1, -34.9, 0), Vector(56.1, -34.9, 0)), False)
sketch8.addGeometry(Part.LineSegment(Vector(56.1, -34.9, 0), Vector(56.1, -38.9, 0)), False)
sketch8.addGeometry(Part.LineSegment(Vector(56.1, -38.9, 0), Vector(52.1, -38.9, 0)), False)
sketch8.addGeometry(Part.LineSegment(Vector(-55.9, -39.1, 0), Vector(-55.9, -35.1, 0)), False)
sketch8.addGeometry(Part.LineSegment(Vector(-55.9, -35.1, 0), Vector(-51.9, -35.1, 0)), False)
sketch8.addGeometry(Part.LineSegment(Vector(-51.9, -35.1, 0), Vector(-51.9, -39.1, 0)), False)
sketch8.addGeometry(Part.LineSegment(Vector(-51.9, -39.1, 0), Vector(-55.9, -39.1, 0)), False)
sketch8.addGeometry(Part.LineSegment(Vector(-2, -2, 0), Vector(-2, 2, 0)), False)
sketch8.addGeometry(Part.LineSegment(Vector(-2, 2, 0), Vector(2, 2, 0)), False)
sketch8.addGeometry(Part.LineSegment(Vector(2, 2, 0), Vector(2, -2, 0)), False)
sketch8.addGeometry(Part.LineSegment(Vector(2, -2, 0), Vector(-2, -2, 0)), False)
sketch8.addConstraint(Sketcher.Constraint("Coincident", 0, 2, 1, 1))
sketch8.addConstraint(Sketcher.Constraint("Coincident", 1, 2, 2, 1))
sketch8.addConstraint(Sketcher.Constraint("Coincident", 2, 2, 3, 1))
sketch8.addConstraint(Sketcher.Constraint("Coincident", 3, 2, 0, 1))
sketch8.addConstraint(Sketcher.Constraint("Coincident", 4, 2, 5, 1))
sketch8.addConstraint(Sketcher.Constraint("Coincident", 5, 2, 6, 1))
sketch8.addConstraint(Sketcher.Constraint("Coincident", 6, 2, 7, 1))
sketch8.addConstraint(Sketcher.Constraint("Coincident", 7, 2, 4, 1))
sketch8.addConstraint(Sketcher.Constraint("Coincident", 8, 2, 9, 1))
sketch8.addConstraint(Sketcher.Constraint("Coincident", 9, 2, 10, 1))
sketch8.addConstraint(Sketcher.Constraint("Coincident", 10, 2, 11, 1))
sketch8.addConstraint(Sketcher.Constraint("Coincident", 11, 2, 8, 1))
sketch8.addConstraint(Sketcher.Constraint("Coincident", 12, 2, 13, 1))
sketch8.addConstraint(Sketcher.Constraint("Coincident", 13, 2, 14, 1))
sketch8.addConstraint(Sketcher.Constraint("Coincident", 14, 2, 15, 1))
sketch8.addConstraint(Sketcher.Constraint("Coincident", 15, 2, 12, 1))
sketch8.addConstraint(Sketcher.Constraint("Coincident", 16, 2, 17, 1))
sketch8.addConstraint(Sketcher.Constraint("Coincident", 17, 2, 18, 1))
sketch8.addConstraint(Sketcher.Constraint("Coincident", 18, 2, 19, 1))
sketch8.addConstraint(Sketcher.Constraint("Coincident", 19, 2, 16, 1))
sketch8.addConstraint(Sketcher.Constraint("Vertical", 0))
sketch8.addConstraint(Sketcher.Constraint("Horizontal", 1))
sketch8.addConstraint(Sketcher.Constraint("Vertical", 2))
sketch8.addConstraint(Sketcher.Constraint("Horizontal", 3))
sketch8.addConstraint(Sketcher.Constraint("Vertical", 4))
sketch8.addConstraint(Sketcher.Constraint("Horizontal", 5))
sketch8.addConstraint(Sketcher.Constraint("Vertical", 6))
sketch8.addConstraint(Sketcher.Constraint("Horizontal", 7))
sketch8.addConstraint(Sketcher.Constraint("Vertical", 8))
sketch8.addConstraint(Sketcher.Constraint("Horizontal", 9))
sketch8.addConstraint(Sketcher.Constraint("Vertical", 10))
sketch8.addConstraint(Sketcher.Constraint("Horizontal", 11))
sketch8.addConstraint(Sketcher.Constraint("Vertical", 12))
sketch8.addConstraint(Sketcher.Constraint("Horizontal", 13))
sketch8.addConstraint(Sketcher.Constraint("Vertical", 14))
sketch8.addConstraint(Sketcher.Constraint("Horizontal", 15))
sketch8.addConstraint(Sketcher.Constraint("Vertical", 16))
sketch8.addConstraint(Sketcher.Constraint("Horizontal", 17))
sketch8.addConstraint(Sketcher.Constraint("Vertical", 18))
sketch8.addConstraint(Sketcher.Constraint("Horizontal", 19))
sketch8.addConstraint(Sketcher.Constraint("Symmetric", 2, 2, 8, 2, -1, 1))
sketch8.addConstraint(Sketcher.Constraint("Symmetric", 0, 2, 10, 2, -1, 1))
sketch8.addConstraint(Sketcher.Constraint("Symmetric", 6, 2, 12, 2, -1, 1))
sketch8.addConstraint(Sketcher.Constraint("Symmetric", 4, 2, 14, 2, -1, 1))
sketch8.addConstraint(Sketcher.Constraint("Symmetric", 16, 2, 18, 2, -1, 1))
sketch8.addConstraint(Sketcher.Constraint("Equal", 3, 5))
sketch8.addConstraint(Sketcher.Constraint("Equal", 15, 17))
sketch8.addConstraint(Sketcher.Constraint("Equal", 19, 0))
sketch8.addConstraint(Sketcher.Constraint("Equal", 2, 4))
sketch8.addConstraint(Sketcher.Constraint("Equal", 14, 16))
sketch8.addConstraint(Sketcher.Constraint("DistanceX", 1, 1, 1, 2, 4.0))
sketch8.addConstraint(Sketcher.Constraint("DistanceX", 1, 2, 4, 2, 104.0))
sketch8.addConstraint(Sketcher.Constraint("DistanceY", 8, 2, 7, 2, 70.0))
sketch8.addConstraint(Sketcher.Constraint("DistanceX", 0, 2, -1, 1, 56.051771))
sketch8.addConstraint(Sketcher.Constraint("DistanceY", -1, 1, 0, 2, 38.924442))
sketch8.setExpression("Constraints[50]", "Params.sketch8_width")
pocket6 = doc.addObject("PartDesign::Pocket", "Pocket005")
body.addObject(pocket6)
pocket6.Profile = sketch8
pocket6.Type = "ThroughAll"
pocket6.Reversed = True

doc.recompute()
